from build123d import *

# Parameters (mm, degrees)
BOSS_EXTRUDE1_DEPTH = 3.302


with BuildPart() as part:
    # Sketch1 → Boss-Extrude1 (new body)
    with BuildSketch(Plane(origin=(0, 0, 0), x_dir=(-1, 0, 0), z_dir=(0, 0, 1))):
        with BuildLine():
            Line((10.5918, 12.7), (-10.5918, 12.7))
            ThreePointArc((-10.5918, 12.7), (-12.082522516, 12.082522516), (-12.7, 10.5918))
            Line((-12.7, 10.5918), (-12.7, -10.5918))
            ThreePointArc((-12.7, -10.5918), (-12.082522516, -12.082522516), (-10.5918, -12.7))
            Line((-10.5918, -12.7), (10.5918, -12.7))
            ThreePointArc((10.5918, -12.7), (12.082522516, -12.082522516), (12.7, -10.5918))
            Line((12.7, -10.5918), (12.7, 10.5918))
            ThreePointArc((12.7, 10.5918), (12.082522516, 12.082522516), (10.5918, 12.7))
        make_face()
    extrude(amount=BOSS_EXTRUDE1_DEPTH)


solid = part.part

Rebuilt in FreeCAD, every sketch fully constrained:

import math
import FreeCAD as App
import Part
import Sketcher

V = App.Vector
Q = App.Units.Quantity

doc = App.newDocument("Part")
body = doc.addObject("PartDesign::Body", "Body")

# Sketch on XY plane
sketch1 = body.newObject("Sketcher::SketchObject", "Sketch")
sketch1.AttachmentSupport = (doc.getObject("XY_Plane"), [""])
sketch1.MapMode = "FlatFace"
sketch1.addGeometry([
    Part.LineSegment(V(-10.6, -12.7, 0), V(10.6, -12.7, 0)),  # 0
    Part.ArcOfCircle(Part.Circle(V(10.6, -10.6, 0), V(0, 0, 1), 2.1), math.radians(-90), math.radians(0)),  # 1
    Part.LineSegment(V(12.7, -10.6, 0), V(12.7, 10.6, 0)),  # 2
    Part.ArcOfCircle(Part.Circle(V(10.6, 10.6, 0), V(0, 0, 1), 2.1), math.radians(0), math.radians(90)),  # 3
    Part.LineSegment(V(10.6, 12.7, 0), V(-10.6, 12.7, 0)),  # 4
    Part.ArcOfCircle(Part.Circle(V(-10.6, 10.6, 0), V(0, 0, 1), 2.1), math.radians(90), math.radians(180)),  # 5
    Part.LineSegment(V(-12.7, 10.6, 0), V(-12.7, -10.6, 0)),  # 6
    Part.ArcOfCircle(Part.Circle(V(-10.6, -10.6, 0), V(0, 0, 1), 2.1), math.radians(180), math.radians(270)),  # 7
], False)
sketch1.addConstraint([
    Sketcher.Constraint("Tangent", 0, 2, 1, 1),
    Sketcher.Constraint("Tangent", 1, 2, 2, 1),
    Sketcher.Constraint("Tangent", 2, 2, 3, 1),
    Sketcher.Constraint("Tangent", 3, 2, 4, 1),
    Sketcher.Constraint("Tangent", 4, 2, 5, 1),
    Sketcher.Constraint("Tangent", 5, 2, 6, 1),
    Sketcher.Constraint("Tangent", 6, 2, 7, 1),
    Sketcher.Constraint("Tangent", 7, 2, 0, 1),
    Sketcher.Constraint("Horizontal", 0),
    Sketcher.Constraint("Vertical", 2),
    Sketcher.Constraint("Horizontal", 4),
    Sketcher.Constraint("Vertical", 6),
    Sketcher.Constraint("Equal", 1, 3),
    Sketcher.Constraint("Equal", 3, 5),
    Sketcher.Constraint("Equal", 5, 7),
    Sketcher.Constraint("Symmetric", 1, 3, 5, 3, -1, 1),
    Sketcher.Constraint("Equal", 4, 2),
    Sketcher.Constraint("Radius", 1, Q("0.083 in")),
    Sketcher.Constraint("DistanceY", 0, 2, -1, 1, Q("0.5 in")),
])
pad1 = body.newObject("PartDesign::Pad", "Pad")
pad1.Profile = sketch1
pad1.Length = Q("0.13 in")

doc.recompute()
